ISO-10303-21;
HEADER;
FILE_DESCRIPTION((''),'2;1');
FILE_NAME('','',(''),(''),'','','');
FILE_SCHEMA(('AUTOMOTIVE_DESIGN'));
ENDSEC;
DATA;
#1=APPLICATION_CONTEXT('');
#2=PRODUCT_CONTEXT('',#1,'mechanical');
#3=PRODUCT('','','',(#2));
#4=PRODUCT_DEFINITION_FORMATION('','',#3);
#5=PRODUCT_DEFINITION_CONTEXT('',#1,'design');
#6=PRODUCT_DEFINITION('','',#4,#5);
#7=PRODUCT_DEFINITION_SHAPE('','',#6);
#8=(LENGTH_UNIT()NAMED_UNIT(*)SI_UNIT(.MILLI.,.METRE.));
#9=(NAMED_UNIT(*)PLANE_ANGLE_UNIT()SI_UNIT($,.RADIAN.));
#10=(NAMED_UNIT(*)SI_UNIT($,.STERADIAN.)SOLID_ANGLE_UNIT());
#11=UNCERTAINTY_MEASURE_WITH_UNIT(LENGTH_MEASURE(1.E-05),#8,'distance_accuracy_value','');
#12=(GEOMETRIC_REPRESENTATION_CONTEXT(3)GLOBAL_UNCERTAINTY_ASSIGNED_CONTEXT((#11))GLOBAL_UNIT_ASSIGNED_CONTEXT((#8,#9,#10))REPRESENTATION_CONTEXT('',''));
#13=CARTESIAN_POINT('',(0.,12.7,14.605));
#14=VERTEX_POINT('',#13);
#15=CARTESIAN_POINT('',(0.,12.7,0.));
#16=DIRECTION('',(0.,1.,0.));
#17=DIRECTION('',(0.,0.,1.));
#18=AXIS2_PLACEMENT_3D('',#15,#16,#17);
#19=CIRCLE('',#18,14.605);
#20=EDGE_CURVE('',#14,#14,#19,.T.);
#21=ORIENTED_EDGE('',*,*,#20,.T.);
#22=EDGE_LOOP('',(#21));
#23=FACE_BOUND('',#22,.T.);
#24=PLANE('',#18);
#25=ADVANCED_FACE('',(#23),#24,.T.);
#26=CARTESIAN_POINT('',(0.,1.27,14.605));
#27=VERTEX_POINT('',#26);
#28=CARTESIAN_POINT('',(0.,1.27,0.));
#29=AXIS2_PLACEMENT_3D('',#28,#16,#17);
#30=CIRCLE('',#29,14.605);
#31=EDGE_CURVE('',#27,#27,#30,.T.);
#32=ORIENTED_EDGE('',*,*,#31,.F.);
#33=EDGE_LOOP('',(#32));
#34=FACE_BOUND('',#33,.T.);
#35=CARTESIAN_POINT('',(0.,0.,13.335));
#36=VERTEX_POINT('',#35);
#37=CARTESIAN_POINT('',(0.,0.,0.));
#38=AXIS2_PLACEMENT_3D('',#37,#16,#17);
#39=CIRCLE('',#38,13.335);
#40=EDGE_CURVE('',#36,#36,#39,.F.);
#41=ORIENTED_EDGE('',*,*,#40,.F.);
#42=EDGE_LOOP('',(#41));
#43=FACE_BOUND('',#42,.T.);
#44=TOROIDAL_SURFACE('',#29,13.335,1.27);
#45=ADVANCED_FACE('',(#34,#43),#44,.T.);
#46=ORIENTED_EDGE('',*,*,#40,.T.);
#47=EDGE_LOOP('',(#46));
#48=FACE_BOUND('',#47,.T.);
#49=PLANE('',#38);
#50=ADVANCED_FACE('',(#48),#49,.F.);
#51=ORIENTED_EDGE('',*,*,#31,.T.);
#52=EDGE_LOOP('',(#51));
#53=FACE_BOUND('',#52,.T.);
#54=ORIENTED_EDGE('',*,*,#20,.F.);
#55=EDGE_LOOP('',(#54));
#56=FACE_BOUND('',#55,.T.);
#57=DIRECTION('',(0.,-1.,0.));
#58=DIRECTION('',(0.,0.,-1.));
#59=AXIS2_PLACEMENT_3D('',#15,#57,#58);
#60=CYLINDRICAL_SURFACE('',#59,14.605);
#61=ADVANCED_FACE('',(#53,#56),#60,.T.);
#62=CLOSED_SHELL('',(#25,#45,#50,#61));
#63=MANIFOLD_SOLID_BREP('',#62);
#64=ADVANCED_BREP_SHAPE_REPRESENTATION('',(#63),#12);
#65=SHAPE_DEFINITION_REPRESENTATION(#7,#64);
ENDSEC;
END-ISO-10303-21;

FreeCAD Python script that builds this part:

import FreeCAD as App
import Part
import Sketcher
Q = App.Units.Quantity


def edges_at(feature, points):
    """Names of the edges that pass closest to the given points."""
    edges = feature.Shape.Edges
    near = lambda p: min(range(len(edges)), key=lambda i: edges[i].distToShape(Part.Vertex(*p))[0])
    return sorted({f"Edge{near(p) + 1}" for p in points})

doc = App.newDocument("Part")
body = doc.addObject("PartDesign::Body", "Body")

# Sketch on XZ plane
sketch1 = doc.addObject("Sketcher::SketchObject", "Sketch")
body.addObject(sketch1)
sketch1.AttachmentSupport = (doc.XZ_Plane, [""])
sketch1.MapMode = "FlatFace"
sketch1.addGeometry(Part.Circle(App.Vector(0, 0, 0), App.Vector(0, 0, 1), 14.605), False)
sketch1.addConstraint([
    Sketcher.Constraint("Coincident", 0, 3, -1, 1),
    Sketcher.Constraint("Diameter", 0, Q("1.15 in")),
])
pad1 = doc.addObject("PartDesign::Pad", "Pad")
body.addObject(pad1)
pad1.Profile = sketch1
pad1.Length = Q("0.5 in")
pad1.Reversed = True
doc.recompute()

fillet = doc.addObject("PartDesign::Fillet", "Fillet")
body.addObject(fillet)
fillet.Base = (pad1, edges_at(pad1, [(0, 0, -14.605)]))
fillet.Radius = Q("0.05 in")

doc.recompute()
